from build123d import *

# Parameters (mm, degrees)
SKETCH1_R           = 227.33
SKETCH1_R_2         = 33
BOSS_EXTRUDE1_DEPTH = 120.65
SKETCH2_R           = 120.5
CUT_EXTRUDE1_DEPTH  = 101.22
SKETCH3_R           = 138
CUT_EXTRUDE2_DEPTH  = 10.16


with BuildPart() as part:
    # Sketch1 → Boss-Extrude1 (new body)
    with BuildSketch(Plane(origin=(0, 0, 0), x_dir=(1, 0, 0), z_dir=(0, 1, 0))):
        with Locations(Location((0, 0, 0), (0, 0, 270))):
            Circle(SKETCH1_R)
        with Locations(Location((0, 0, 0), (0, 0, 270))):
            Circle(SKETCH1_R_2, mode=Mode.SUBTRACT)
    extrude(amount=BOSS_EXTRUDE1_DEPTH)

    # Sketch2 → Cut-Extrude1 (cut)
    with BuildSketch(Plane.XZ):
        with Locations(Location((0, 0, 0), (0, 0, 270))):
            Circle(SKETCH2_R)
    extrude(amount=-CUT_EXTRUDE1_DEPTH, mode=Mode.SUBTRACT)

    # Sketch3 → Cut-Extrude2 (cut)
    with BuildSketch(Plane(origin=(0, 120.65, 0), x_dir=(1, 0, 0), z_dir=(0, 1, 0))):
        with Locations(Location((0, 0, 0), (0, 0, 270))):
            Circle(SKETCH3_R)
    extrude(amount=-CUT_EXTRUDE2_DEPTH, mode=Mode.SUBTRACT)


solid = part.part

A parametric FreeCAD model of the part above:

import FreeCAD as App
import Part
import Sketcher
from FreeCAD import Vector

doc = App.newDocument("Part")
body = doc.addObject("PartDesign::Body", "Body")

sketch1 = body.newObject("Sketcher::SketchObject", "Sketch")
sketch1.AttachmentSupport = (doc.getObject("XZ_Plane"), [""])
sketch1.MapMode = "FlatFace"
sketch1.addGeometry(Part.Circle(Vector(0, 0, 0), Vector(0, 0, 1), 227), False)
sketch1.addGeometry(Part.Circle(Vector(0, 0, 0), Vector(0, 0, 1), 33), False)
sketch1.addConstraint(Sketcher.Constraint("Coincident", 0, 3, -1, 1))
sketch1.addConstraint(Sketcher.Constraint("Coincident", 1, 3, -1, 1))
sketch1.addConstraint(Sketcher.Constraint("Diameter", 1, 66.0))
sketch1.addConstraint(Sketcher.Constraint("Diameter", 0, 454.66))
pad1 = body.newObject("PartDesign::Pad", "Pad")
pad1.Profile = sketch1
pad1.Length = 120.65
pad1.Reversed = True

sketch2 = body.newObject("Sketcher::SketchObject", "Sketch001")
sketch2.AttachmentSupport = (doc.getObject("XZ_Plane"), [""])
sketch2.MapMode = "FlatFace"
sketch2.addGeometry(Part.Circle(Vector(0, 0, 0), Vector(0, 0, 1), 120), False)
sketch2.addConstraint(Sketcher.Constraint("Coincident", 0, 3, -1, 1))
sketch2.addConstraint(Sketcher.Constraint("Diameter", 0, 241.0))
pocket1 = body.newObject("PartDesign::Pocket", "Pocket")
pocket1.Profile = sketch2
pocket1.Length = 101.22

sketch3 = body.newObject("Sketcher::SketchObject", "Sketch002")
sketch3.AttachmentSupport = (doc.getObject("XZ_Plane"), [""])
sketch3.MapMode = "FlatFace"
sketch3.AttachmentOffset = App.Placement(Vector(0, 0, -120.65), App.Rotation())
sketch3.addGeometry(Part.Circle(Vector(0, 0, 0), Vector(0, 0, 1), 138), False)
sketch3.addConstraint(Sketcher.Constraint("Coincident", 0, 3, -1, 1))
sketch3.addConstraint(Sketcher.Constraint("Diameter", 0, 276.0))
pocket2 = body.newObject("PartDesign::Pocket", "Pocket001")
pocket2.Profile = sketch3
pocket2.Length = 10.16
pocket2.Reversed = True

doc.recompute()
